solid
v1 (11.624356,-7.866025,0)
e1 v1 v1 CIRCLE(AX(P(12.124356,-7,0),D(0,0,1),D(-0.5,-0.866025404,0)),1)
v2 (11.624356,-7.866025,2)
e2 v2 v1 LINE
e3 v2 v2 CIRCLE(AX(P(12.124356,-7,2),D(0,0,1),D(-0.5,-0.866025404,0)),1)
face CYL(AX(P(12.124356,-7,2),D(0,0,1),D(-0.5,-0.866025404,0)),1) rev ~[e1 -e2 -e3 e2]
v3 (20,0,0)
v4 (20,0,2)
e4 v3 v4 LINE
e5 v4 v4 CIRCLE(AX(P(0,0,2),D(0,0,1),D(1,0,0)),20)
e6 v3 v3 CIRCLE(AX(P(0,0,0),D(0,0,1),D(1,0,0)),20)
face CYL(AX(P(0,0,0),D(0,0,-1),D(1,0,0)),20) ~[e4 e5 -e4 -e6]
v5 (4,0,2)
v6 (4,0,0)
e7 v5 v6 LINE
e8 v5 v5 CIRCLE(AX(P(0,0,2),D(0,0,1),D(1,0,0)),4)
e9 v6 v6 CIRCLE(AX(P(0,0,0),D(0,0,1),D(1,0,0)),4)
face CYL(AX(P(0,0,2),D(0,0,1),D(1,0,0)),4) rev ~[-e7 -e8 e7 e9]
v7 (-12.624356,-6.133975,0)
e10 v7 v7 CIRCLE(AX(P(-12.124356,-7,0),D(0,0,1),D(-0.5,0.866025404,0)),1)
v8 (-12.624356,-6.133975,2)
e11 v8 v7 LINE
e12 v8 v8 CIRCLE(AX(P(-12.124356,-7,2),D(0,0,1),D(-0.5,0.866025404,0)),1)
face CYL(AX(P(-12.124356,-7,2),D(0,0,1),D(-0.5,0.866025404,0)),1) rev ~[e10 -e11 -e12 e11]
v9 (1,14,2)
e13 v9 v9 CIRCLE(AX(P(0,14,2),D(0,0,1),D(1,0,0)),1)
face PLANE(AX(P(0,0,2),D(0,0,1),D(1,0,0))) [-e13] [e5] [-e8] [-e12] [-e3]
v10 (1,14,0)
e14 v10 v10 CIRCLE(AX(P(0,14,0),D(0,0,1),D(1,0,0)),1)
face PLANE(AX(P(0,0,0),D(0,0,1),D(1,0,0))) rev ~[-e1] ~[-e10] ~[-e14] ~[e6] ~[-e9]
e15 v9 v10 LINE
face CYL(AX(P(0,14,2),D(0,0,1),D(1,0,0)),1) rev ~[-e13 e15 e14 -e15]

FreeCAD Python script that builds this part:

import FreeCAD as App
import Part
import Sketcher

V = App.Vector
Q = App.Units.Quantity

doc = App.newDocument("Part")
body = doc.addObject("PartDesign::Body", "Body")

# Sketch on XY plane
sketch1 = body.newObject("Sketcher::SketchObject", "Sketch")
sketch1.AttachmentSupport = (doc.getObject("XY_Plane"), [""])
sketch1.MapMode = "FlatFace"
sketch1.addGeometry(Part.Circle(V(0, 0, 0), V(0, 0, 1), 20), False)
sketch1.addConstraint([
    Sketcher.Constraint("Coincident", 0, 3, -1, 1),
    Sketcher.Constraint("Diameter", 0, Q("40 mm")),
])
pad1 = body.newObject("PartDesign::Pad", "Pad")
pad1.Profile = sketch1
pad1.Length = 2

# Sketch on XY plane
sketch2 = body.newObject("Sketcher::SketchObject", "Sketch001")
sketch2.AttachmentSupport = (doc.getObject("XY_Plane"), [""])
sketch2.MapMode = "FlatFace"
sketch2.AttachmentOffset = App.Placement(V(0, 0, 2), App.Rotation())
sketch2.addGeometry(Part.Circle(V(0, 14, 0), V(0, 0, 1), 1), False)
sketch2.addConstraint([
    Sketcher.Constraint("PointOnObject", 0, 3, -2),
    Sketcher.Constraint("Diameter", 0, Q("2 mm")),
    Sketcher.Constraint("DistanceY", -1, 1, 0, 3, Q("14 mm")),
])
pocket1 = body.newObject("PartDesign::Pocket", "Pocket")
pocket1.Profile = sketch2
pocket1.Length = 2
doc.recompute()

polarpattern = body.newObject("PartDesign::PolarPattern", "PolarPattern")
polarpattern.Originals = [pocket1]
polarpattern.Axis = (doc.getObject("Z_Axis"), [""])
polarpattern.Angle = 360
polarpattern.Occurrences = 3
body.Tip = polarpattern

# Sketch on XY plane
sketch3 = body.newObject("Sketcher::SketchObject", "Sketch002")
sketch3.AttachmentSupport = (doc.getObject("XY_Plane"), [""])
sketch3.MapMode = "FlatFace"
sketch3.AttachmentOffset = App.Placement(V(0, 0, 2), App.Rotation())
sketch3.addGeometry(Part.Circle(V(0, 0, 0), V(0, 0, 1), 4), False)
sketch3.addConstraint([
    Sketcher.Constraint("Coincident", 0, 3, -1, 1),
    Sketcher.Constraint("Diameter", 0, Q("8 mm")),
])
pocket2 = body.newObject("PartDesign::Pocket", "Pocket001")
pocket2.Profile = sketch3
pocket2.Length = 2

doc.recompute()
